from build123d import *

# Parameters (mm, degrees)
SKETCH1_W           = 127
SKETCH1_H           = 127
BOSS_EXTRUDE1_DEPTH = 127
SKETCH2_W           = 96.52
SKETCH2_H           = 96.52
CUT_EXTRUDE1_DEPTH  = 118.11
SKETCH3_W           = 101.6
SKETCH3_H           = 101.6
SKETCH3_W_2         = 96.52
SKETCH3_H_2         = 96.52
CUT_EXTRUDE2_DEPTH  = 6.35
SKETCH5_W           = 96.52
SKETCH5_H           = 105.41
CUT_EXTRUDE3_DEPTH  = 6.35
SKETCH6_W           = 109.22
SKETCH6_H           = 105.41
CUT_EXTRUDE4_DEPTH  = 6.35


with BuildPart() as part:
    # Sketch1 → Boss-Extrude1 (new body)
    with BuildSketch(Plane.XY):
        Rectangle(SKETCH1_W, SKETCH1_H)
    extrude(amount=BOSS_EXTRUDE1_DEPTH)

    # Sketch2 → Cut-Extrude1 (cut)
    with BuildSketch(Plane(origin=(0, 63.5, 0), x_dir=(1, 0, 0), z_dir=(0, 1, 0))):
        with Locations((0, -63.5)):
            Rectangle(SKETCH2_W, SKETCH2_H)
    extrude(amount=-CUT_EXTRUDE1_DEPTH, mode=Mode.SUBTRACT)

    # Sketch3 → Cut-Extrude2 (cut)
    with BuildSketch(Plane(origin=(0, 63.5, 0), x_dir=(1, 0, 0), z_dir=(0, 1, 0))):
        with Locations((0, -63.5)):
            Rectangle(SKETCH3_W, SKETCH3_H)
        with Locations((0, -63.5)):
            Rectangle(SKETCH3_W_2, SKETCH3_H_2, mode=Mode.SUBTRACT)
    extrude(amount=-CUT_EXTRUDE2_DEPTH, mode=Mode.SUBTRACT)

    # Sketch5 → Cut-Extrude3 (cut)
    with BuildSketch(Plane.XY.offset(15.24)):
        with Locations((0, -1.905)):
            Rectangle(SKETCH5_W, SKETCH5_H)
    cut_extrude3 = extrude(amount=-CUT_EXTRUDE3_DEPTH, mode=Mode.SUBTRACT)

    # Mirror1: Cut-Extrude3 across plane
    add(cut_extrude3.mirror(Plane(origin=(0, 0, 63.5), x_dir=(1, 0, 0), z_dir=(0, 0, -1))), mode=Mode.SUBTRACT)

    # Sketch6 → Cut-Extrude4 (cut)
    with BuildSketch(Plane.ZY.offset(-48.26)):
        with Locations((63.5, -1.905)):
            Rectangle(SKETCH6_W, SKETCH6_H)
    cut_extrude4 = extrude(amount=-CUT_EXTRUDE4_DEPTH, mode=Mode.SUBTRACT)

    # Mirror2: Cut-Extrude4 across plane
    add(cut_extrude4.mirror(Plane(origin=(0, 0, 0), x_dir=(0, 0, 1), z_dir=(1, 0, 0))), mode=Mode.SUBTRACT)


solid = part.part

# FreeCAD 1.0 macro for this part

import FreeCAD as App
import Part
import Sketcher
Q = App.Units.Quantity

doc = App.newDocument("Part")
body = doc.addObject("PartDesign::Body", "Body")

# Sketch on XY plane
sketch1 = doc.addObject("Sketcher::SketchObject", "Sketch")
body.addObject(sketch1)
sketch1.AttachmentSupport = (doc.XY_Plane, [""])
sketch1.MapMode = "FlatFace"
sketch1.addGeometry([
    Part.LineSegment(App.Vector(-63.5, 63.5, 0), App.Vector(-63.5, -63.5, 0)),
    Part.LineSegment(App.Vector(-63.5, -63.5, 0), App.Vector(63.5, -63.5, 0)),
    Part.LineSegment(App.Vector(63.5, -63.5, 0), App.Vector(63.5, 63.5, 0)),
    Part.LineSegment(App.Vector(63.5, 63.5, 0), App.Vector(-63.5, 63.5, 0)),
], False)
sketch1.addConstraint([
    Sketcher.Constraint("Coincident", 0, 2, 1, 1),
    Sketcher.Constraint("Coincident", 1, 2, 2, 1),
    Sketcher.Constraint("Coincident", 2, 2, 3, 1),
    Sketcher.Constraint("Coincident", 3, 2, 0, 1),
    Sketcher.Constraint("Vertical", 0),
    Sketcher.Constraint("Horizontal", 1),
    Sketcher.Constraint("Vertical", 2),
    Sketcher.Constraint("Horizontal", 3),
    Sketcher.Constraint("Symmetric", 0, 2, 2, 2, -1, 1),
    Sketcher.Constraint("Equal", 3, 0),
    Sketcher.Constraint("DistanceX", 1, 1, 1, 2, Q("5 in")),
])
pad1 = doc.addObject("PartDesign::Pad", "Pad")
body.addObject(pad1)
pad1.Profile = sketch1
pad1.Length = Q("5 in")

# Sketch on XZ plane
sketch2 = doc.addObject("Sketcher::SketchObject", "Sketch001")
body.addObject(sketch2)
sketch2.AttachmentSupport = (doc.XZ_Plane, [""])
sketch2.MapMode = "FlatFace"
sketch2.AttachmentOffset = App.Placement(App.Vector(0, 0, -2.5 * 25.4), App.Rotation())
sketch2.addGeometry([
    Part.LineSegment(App.Vector(-48.26, 15.24, 0), App.Vector(-48.26, 111.76, 0)),
    Part.LineSegment(App.Vector(-48.26, 111.76, 0), App.Vector(48.26, 111.76, 0)),
    Part.LineSegment(App.Vector(48.26, 111.76, 0), App.Vector(48.26, 15.24, 0)),
    Part.LineSegment(App.Vector(48.26, 15.24, 0), App.Vector(-48.26, 15.24, 0)),
], False)
sketch2.addConstraint([
    Sketcher.Constraint("Coincident", 0, 2, 1, 1),
    Sketcher.Constraint("Coincident", 1, 2, 2, 1),
    Sketcher.Constraint("Coincident", 2, 2, 3, 1),
    Sketcher.Constraint("Coincident", 3, 2, 0, 1),
    Sketcher.Constraint("Vertical", 0),
    Sketcher.Constraint("Horizontal", 1),
    Sketcher.Constraint("Vertical", 2),
    Sketcher.Constraint("Horizontal", 3),
    Sketcher.Constraint("Equal", 3, 0),
    Sketcher.Constraint("DistanceX", 1, 1, 1, 2, Q("3.8 in")),
    Sketcher.Constraint("DistanceX", 0, 2, -1, 1, Q("1.9 in")),
    Sketcher.Constraint("DistanceY", -1, 1, 0, 2, Q("4.4 in")),
])
pocket1 = doc.addObject("PartDesign::Pocket", "Pocket")
body.addObject(pocket1)
pocket1.Profile = sketch2
pocket1.Length = Q("4.65 in")
pocket1.Reversed = True

# Sketch on XZ plane
sketch3 = doc.addObject("Sketcher::SketchObject", "Sketch002")
body.addObject(sketch3)
sketch3.AttachmentSupport = (doc.XZ_Plane, [""])
sketch3.MapMode = "FlatFace"
sketch3.AttachmentOffset = App.Placement(App.Vector(0, 0, -2.5 * 25.4), App.Rotation())
sketch3.addGeometry([
    Part.LineSegment(App.Vector(-50.8, 12.7, 0), App.Vector(-50.8, 114.3, 0)),  # 0
    Part.LineSegment(App.Vector(-50.8, 114.3, 0), App.Vector(50.8, 114.3, 0)),  # 1
    Part.LineSegment(App.Vector(50.8, 114.3, 0), App.Vector(50.8, 12.7, 0)),  # 2
    Part.LineSegment(App.Vector(50.8, 12.7, 0), App.Vector(-50.8, 12.7, 0)),  # 3
    Part.LineSegment(App.Vector(48.26, 111.76, 0), App.Vector(-48.26, 111.76, 0)),  # 4
    Part.LineSegment(App.Vector(-48.26, 111.76, 0), App.Vector(-48.26, 15.24, 0)),  # 5
    Part.LineSegment(App.Vector(-48.26, 15.24, 0), App.Vector(48.26, 15.24, 0)),  # 6
    Part.LineSegment(App.Vector(48.26, 15.24, 0), App.Vector(48.26, 111.76, 0)),  # 7
], False)
sketch3.addConstraint([
    Sketcher.Constraint("Coincident", 0, 2, 1, 1),
    Sketcher.Constraint("Coincident", 1, 2, 2, 1),
    Sketcher.Constraint("Coincident", 2, 2, 3, 1),
    Sketcher.Constraint("Coincident", 3, 2, 0, 1),
    Sketcher.Constraint("Coincident", 4, 2, 5, 1),
    Sketcher.Constraint("Coincident", 5, 2, 6, 1),
    Sketcher.Constraint("Coincident", 6, 2, 7, 1),
    Sketcher.Constraint("Coincident", 7, 2, 4, 1),
    Sketcher.Constraint("Vertical", 0),
    Sketcher.Constraint("Horizontal", 1),
    Sketcher.Constraint("Vertical", 2),
    Sketcher.Constraint("Horizontal", 3),
    Sketcher.Constraint("Horizontal", 4),
    Sketcher.Constraint("Vertical", 5),
    Sketcher.Constraint("Horizontal", 6),
    Sketcher.Constraint("Vertical", 7),
    Sketcher.Constraint("Equal", 3, 0),
    Sketcher.Constraint("Equal", 6, 5),
    Sketcher.Constraint("DistanceX", 1, 1, 1, 2, Q("4 in")),
    Sketcher.Constraint("DistanceX", 4, 2, 4, 1, Q("3.8 in")),
    Sketcher.Constraint("DistanceX", 0, 2, -1, 1, Q("2 in")),
    Sketcher.Constraint("DistanceY", -1, 1, 0, 2, Q("4.5 in")),
    Sketcher.Constraint("DistanceX", 4, 2, -1, 1, Q("1.9 in")),
    Sketcher.Constraint("DistanceY", -1, 1, 4, 2, Q("4.4 in")),
])
pocket2 = doc.addObject("PartDesign::Pocket", "Pocket001")
body.addObject(pocket2)
pocket2.Profile = sketch3
pocket2.Length = Q("0.25 in")
pocket2.Reversed = True

# Sketch on XY plane
sketch4 = doc.addObject("Sketcher::SketchObject", "Sketch003")
body.addObject(sketch4)
sketch4.AttachmentSupport = (doc.XY_Plane, [""])
sketch4.MapMode = "FlatFace"
sketch4.AttachmentOffset = App.Placement(App.Vector(0, 0, 0.6 * 25.4), App.Rotation())
sketch4.addGeometry([
    Part.LineSegment(App.Vector(-48.26, 50.8, 0), App.Vector(-48.26, -54.61, 0)),
    Part.LineSegment(App.Vector(-48.26, -54.61, 0), App.Vector(48.26, -54.61, 0)),
    Part.LineSegment(App.Vector(48.26, -54.61, 0), App.Vector(48.26, 50.8, 0)),
    Part.LineSegment(App.Vector(48.26, 50.8, 0), App.Vector(-48.26, 50.8, 0)),
], False)
sketch4.addConstraint([
    Sketcher.Constraint("Coincident", 0, 2, 1, 1),
    Sketcher.Constraint("Coincident", 1, 2, 2, 1),
    Sketcher.Constraint("Coincident", 2, 2, 3, 1),
    Sketcher.Constraint("Coincident", 3, 2, 0, 1),
    Sketcher.Constraint("Vertical", 0),
    Sketcher.Constraint("Horizontal", 1),
    Sketcher.Constraint("Vertical", 2),
    Sketcher.Constraint("Horizontal", 3),
    Sketcher.Constraint("DistanceX", 1, 1, 1, 2, Q("3.8 in")),
    Sketcher.Constraint("DistanceY", -1, 1, 2, 2, Q("2 in")),
    Sketcher.Constraint("DistanceY", 0, 2, 0, 1, Q("4.15 in")),
    Sketcher.Constraint("DistanceX", 0, 2, -1, 1, Q("1.9 in")),
])
pocket3 = doc.addObject("PartDesign::Pocket", "Pocket002")
body.addObject(pocket3)
pocket3.Profile = sketch4
pocket3.Length = Q("0.25 in")
doc.recompute()

datumplane = doc.addObject("PartDesign::Plane", "DatumPlane")
body.addObject(datumplane)
datumplane.AttachmentSupport = (doc.XY_Plane, [""])
datumplane.MapMode = "FlatFace"
datumplane.AttachmentOffset = App.Placement(App.Vector(0, 0, 2.5 * 25.4), App.Rotation())
mirrored = doc.addObject("PartDesign::Mirrored", "Mirrored")
body.addObject(mirrored)
mirrored.Originals = [pocket3]
mirrored.MirrorPlane = (datumplane, [""])
body.Tip = mirrored

# Sketch on YZ plane
sketch5 = doc.addObject("Sketcher::SketchObject", "Sketch004")
body.addObject(sketch5)
sketch5.AttachmentSupport = (doc.YZ_Plane, [""])
sketch5.MapMode = "FlatFace"
sketch5.AttachmentOffset = App.Placement(App.Vector(0, 0, 1.9 * 25.4), App.Rotation())
sketch5.addGeometry([
    Part.LineSegment(App.Vector(50.8, 8.89, 0), App.Vector(-54.61, 8.89, 0)),
    Part.LineSegment(App.Vector(-54.61, 8.89, 0), App.Vector(-54.61, 118.11, 0)),
    Part.LineSegment(App.Vector(-54.61, 118.11, 0), App.Vector(50.8, 118.11, 0)),
    Part.LineSegment(App.Vector(50.8, 118.11, 0), App.Vector(50.8, 8.89, 0)),
], False)
sketch5.addConstraint([
    Sketcher.Constraint("Coincident", 0, 2, 1, 1),
    Sketcher.Constraint("Coincident", 1, 2, 2, 1),
    Sketcher.Constraint("Coincident", 2, 2, 3, 1),
    Sketcher.Constraint("Coincident", 3, 2, 0, 1),
    Sketcher.Constraint("Horizontal", 0),
    Sketcher.Constraint("Vertical", 1),
    Sketcher.Constraint("Horizontal", 2),
    Sketcher.Constraint("Vertical", 3),
    Sketcher.Constraint("DistanceY", 1, 1, 1, 2, Q("4.3 in")),
    Sketcher.Constraint("DistanceX", -1, 1, 2, 2, Q("2 in")),
    Sketcher.Constraint("DistanceX", 0, 2, 0, 1, Q("4.15 in")),
    Sketcher.Constraint("DistanceY", -1, 1, 0, 2, Q("0.35 in")),
])
pocket4 = doc.addObject("PartDesign::Pocket", "Pocket003")
body.addObject(pocket4)
pocket4.Profile = sketch5
pocket4.Length = Q("0.25 in")
pocket4.Reversed = True
doc.recompute()

mirrored2 = doc.addObject("PartDesign::Mirrored", "Mirrored001")
body.addObject(mirrored2)
mirrored2.Originals = [pocket4]
mirrored2.MirrorPlane = (doc.YZ_Plane, [""])
body.Tip = mirrored2

doc.recompute()
